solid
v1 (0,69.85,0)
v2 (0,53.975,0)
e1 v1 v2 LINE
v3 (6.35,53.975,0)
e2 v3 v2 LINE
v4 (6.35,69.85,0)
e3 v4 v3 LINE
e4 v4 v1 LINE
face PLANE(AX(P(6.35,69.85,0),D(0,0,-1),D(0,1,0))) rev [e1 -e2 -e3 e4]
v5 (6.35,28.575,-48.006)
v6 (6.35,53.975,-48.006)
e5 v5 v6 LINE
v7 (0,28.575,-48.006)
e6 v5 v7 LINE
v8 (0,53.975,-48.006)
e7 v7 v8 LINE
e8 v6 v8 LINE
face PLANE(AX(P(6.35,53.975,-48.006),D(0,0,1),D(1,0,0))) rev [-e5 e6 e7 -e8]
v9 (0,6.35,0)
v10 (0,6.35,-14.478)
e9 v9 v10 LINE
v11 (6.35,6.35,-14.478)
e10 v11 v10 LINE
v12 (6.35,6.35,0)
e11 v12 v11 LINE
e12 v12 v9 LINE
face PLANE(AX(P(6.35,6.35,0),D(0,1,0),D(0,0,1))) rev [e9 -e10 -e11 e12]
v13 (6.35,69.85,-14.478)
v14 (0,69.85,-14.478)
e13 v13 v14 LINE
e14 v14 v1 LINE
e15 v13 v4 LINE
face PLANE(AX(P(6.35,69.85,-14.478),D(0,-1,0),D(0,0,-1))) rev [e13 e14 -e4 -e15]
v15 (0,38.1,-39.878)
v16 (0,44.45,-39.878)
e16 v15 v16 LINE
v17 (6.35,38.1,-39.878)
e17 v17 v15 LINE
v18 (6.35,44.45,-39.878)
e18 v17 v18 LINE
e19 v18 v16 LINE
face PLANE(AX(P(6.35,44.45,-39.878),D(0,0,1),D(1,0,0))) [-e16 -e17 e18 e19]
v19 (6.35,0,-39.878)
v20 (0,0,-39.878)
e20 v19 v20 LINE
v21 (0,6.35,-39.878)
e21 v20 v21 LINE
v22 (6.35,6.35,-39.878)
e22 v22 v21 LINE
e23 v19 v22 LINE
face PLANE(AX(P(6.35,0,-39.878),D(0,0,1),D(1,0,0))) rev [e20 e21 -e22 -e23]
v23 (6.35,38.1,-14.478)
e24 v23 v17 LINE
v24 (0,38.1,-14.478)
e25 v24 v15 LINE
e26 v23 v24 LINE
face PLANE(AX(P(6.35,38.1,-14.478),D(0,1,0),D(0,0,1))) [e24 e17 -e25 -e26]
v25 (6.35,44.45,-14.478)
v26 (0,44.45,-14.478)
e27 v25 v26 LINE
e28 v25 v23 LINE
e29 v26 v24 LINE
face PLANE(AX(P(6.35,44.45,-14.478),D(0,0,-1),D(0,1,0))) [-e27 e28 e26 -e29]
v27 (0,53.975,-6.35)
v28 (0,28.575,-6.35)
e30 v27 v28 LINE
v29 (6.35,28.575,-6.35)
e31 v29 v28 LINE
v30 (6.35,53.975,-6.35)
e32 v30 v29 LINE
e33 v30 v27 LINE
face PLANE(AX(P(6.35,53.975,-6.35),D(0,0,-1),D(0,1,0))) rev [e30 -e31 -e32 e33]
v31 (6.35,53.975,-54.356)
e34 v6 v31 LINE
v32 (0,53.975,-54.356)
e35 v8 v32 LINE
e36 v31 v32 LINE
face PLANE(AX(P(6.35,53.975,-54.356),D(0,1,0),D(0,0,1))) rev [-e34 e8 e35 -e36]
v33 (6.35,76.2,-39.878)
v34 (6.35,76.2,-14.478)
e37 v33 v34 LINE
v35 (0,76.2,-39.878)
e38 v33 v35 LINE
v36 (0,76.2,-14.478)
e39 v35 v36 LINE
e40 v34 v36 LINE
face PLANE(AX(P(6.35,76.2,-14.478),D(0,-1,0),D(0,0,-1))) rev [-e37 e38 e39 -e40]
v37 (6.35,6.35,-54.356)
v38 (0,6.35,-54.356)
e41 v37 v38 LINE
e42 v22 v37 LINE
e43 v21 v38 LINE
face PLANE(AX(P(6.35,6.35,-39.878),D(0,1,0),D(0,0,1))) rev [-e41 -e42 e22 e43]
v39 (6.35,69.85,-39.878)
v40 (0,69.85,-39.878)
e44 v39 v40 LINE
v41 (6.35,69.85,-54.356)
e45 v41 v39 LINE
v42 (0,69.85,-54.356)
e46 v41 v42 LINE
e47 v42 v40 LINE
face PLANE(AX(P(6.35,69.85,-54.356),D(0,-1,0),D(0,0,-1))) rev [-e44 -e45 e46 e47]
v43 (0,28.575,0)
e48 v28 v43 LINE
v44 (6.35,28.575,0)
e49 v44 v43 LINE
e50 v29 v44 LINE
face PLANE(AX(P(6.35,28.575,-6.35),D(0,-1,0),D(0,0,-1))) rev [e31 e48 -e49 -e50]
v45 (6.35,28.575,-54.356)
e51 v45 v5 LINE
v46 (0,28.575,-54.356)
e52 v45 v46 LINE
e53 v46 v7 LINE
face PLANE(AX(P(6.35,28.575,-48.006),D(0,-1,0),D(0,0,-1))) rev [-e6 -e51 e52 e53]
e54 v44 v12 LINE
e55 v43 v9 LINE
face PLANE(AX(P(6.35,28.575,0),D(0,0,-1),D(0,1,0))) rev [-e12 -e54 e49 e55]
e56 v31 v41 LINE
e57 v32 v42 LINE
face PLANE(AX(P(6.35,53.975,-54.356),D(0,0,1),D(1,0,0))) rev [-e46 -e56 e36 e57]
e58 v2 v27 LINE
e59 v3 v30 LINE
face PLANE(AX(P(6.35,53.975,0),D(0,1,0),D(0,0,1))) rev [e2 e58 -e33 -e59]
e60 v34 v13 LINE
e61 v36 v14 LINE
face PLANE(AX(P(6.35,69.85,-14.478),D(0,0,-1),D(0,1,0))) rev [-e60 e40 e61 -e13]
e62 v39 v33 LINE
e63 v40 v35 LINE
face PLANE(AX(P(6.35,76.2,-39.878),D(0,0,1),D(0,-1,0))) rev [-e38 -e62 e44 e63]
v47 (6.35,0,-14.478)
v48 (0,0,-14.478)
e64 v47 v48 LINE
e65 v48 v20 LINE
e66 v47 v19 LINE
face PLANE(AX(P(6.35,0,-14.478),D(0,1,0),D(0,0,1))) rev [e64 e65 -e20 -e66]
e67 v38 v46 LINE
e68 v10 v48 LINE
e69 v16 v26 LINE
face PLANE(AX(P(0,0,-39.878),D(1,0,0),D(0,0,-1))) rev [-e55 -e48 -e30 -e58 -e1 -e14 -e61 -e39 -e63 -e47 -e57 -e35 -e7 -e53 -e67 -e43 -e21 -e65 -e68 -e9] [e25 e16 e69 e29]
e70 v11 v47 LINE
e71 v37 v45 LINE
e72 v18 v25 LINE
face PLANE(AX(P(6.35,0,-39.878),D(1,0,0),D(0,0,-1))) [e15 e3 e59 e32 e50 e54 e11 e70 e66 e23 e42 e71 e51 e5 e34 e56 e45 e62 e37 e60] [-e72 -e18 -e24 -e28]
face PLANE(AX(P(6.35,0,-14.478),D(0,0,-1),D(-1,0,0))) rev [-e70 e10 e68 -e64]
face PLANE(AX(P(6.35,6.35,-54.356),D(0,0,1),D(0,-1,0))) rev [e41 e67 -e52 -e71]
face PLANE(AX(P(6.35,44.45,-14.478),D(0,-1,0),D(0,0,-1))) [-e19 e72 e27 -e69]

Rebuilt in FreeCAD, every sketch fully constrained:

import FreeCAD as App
import Part
import Sketcher
from FreeCAD import Vector
Q = App.Units.Quantity

doc = App.newDocument("Part")
body = doc.addObject("PartDesign::Body", "Body")

# Sketch on YZ plane
sketch1 = body.newObject("Sketcher::SketchObject", "Sketch")
sketch1.AttachmentSupport = (doc.getObject("YZ_Plane"), [""])
sketch1.MapMode = "FlatFace"
sketch1.addGeometry(Part.LineSegment(Vector(6, -14, 0), Vector(0, -14, 0)), False)
sketch1.addGeometry(Part.LineSegment(Vector(0, -14, 0), Vector(0, -40, 0)), False)
sketch1.addGeometry(Part.LineSegment(Vector(0, -40, 0), Vector(6, -40, 0)), False)
sketch1.addGeometry(Part.LineSegment(Vector(6, -40, 0), Vector(6, -54, 0)), False)
sketch1.addGeometry(Part.LineSegment(Vector(6, -54, 0), Vector(29, -54, 0)), False)
sketch1.addGeometry(Part.LineSegment(Vector(29, -54, 0), Vector(29, -48, 0)), False)
sketch1.addGeometry(Part.LineSegment(Vector(29, -48, 0), Vector(54, -48, 0)), False)
sketch1.addGeometry(Part.LineSegment(Vector(54, -48, 0), Vector(54, -54, 0)), False)
sketch1.addGeometry(Part.LineSegment(Vector(54, -54, 0), Vector(70, -54, 0)), False)
sketch1.addGeometry(Part.LineSegment(Vector(70, -54, 0), Vector(70, -40, 0)), False)
sketch1.addGeometry(Part.LineSegment(Vector(70, -40, 0), Vector(76, -40, 0)), False)
sketch1.addGeometry(Part.LineSegment(Vector(76, -40, 0), Vector(76, -14, 0)), False)
sketch1.addGeometry(Part.LineSegment(Vector(76, -14, 0), Vector(70, -14, 0)), False)
sketch1.addGeometry(Part.LineSegment(Vector(70, -14, 0), Vector(70, 0, 0)), False)
sketch1.addGeometry(Part.LineSegment(Vector(70, 0, 0), Vector(54, 0, 0)), False)
sketch1.addGeometry(Part.LineSegment(Vector(54, 0, 0), Vector(54, -6, 0)), False)
sketch1.addGeometry(Part.LineSegment(Vector(54, -6, 0), Vector(29, -6, 0)), False)
sketch1.addGeometry(Part.LineSegment(Vector(29, -6, 0), Vector(29, 0, 0)), False)
sketch1.addGeometry(Part.LineSegment(Vector(29, 0, 0), Vector(6, 0, 0)), False)
sketch1.addGeometry(Part.LineSegment(Vector(6, 0, 0), Vector(6, -14, 0)), False)
sketch1.addGeometry(Part.LineSegment(Vector(38, -14, 0), Vector(44, -14, 0)), False)
sketch1.addGeometry(Part.LineSegment(Vector(44, -14, 0), Vector(44, -40, 0)), False)
sketch1.addGeometry(Part.LineSegment(Vector(44, -40, 0), Vector(38, -40, 0)), False)
sketch1.addGeometry(Part.LineSegment(Vector(38, -40, 0), Vector(38, -14, 0)), False)
sketch1.addConstraint(Sketcher.Constraint("Coincident", 0, 2, 1, 1))
sketch1.addConstraint(Sketcher.Constraint("Coincident", 1, 2, 2, 1))
sketch1.addConstraint(Sketcher.Constraint("Coincident", 2, 2, 3, 1))
sketch1.addConstraint(Sketcher.Constraint("Coincident", 3, 2, 4, 1))
sketch1.addConstraint(Sketcher.Constraint("Coincident", 4, 2, 5, 1))
sketch1.addConstraint(Sketcher.Constraint("Coincident", 5, 2, 6, 1))
sketch1.addConstraint(Sketcher.Constraint("Coincident", 6, 2, 7, 1))
sketch1.addConstraint(Sketcher.Constraint("Coincident", 7, 2, 8, 1))
sketch1.addConstraint(Sketcher.Constraint("Coincident", 8, 2, 9, 1))
sketch1.addConstraint(Sketcher.Constraint("Coincident", 9, 2, 10, 1))
sketch1.addConstraint(Sketcher.Constraint("Coincident", 10, 2, 11, 1))
sketch1.addConstraint(Sketcher.Constraint("Coincident", 11, 2, 12, 1))
sketch1.addConstraint(Sketcher.Constraint("Coincident", 12, 2, 13, 1))
sketch1.addConstraint(Sketcher.Constraint("Coincident", 13, 2, 14, 1))
sketch1.addConstraint(Sketcher.Constraint("Coincident", 14, 2, 15, 1))
sketch1.addConstraint(Sketcher.Constraint("Coincident", 15, 2, 16, 1))
sketch1.addConstraint(Sketcher.Constraint("Coincident", 16, 2, 17, 1))
sketch1.addConstraint(Sketcher.Constraint("Coincident", 17, 2, 18, 1))
sketch1.addConstraint(Sketcher.Constraint("Coincident", 18, 2, 19, 1))
sketch1.addConstraint(Sketcher.Constraint("Coincident", 19, 2, 0, 1))
sketch1.addConstraint(Sketcher.Constraint("Coincident", 20, 2, 21, 1))
sketch1.addConstraint(Sketcher.Constraint("Coincident", 21, 2, 22, 1))
sketch1.addConstraint(Sketcher.Constraint("Coincident", 22, 2, 23, 1))
sketch1.addConstraint(Sketcher.Constraint("Coincident", 23, 2, 20, 1))
sketch1.addConstraint(Sketcher.Constraint("Horizontal", 0))
sketch1.addConstraint(Sketcher.Constraint("Vertical", 1))
sketch1.addConstraint(Sketcher.Constraint("Horizontal", 2))
sketch1.addConstraint(Sketcher.Constraint("Vertical", 3))
sketch1.addConstraint(Sketcher.Constraint("Horizontal", 4))
sketch1.addConstraint(Sketcher.Constraint("Vertical", 5))
sketch1.addConstraint(Sketcher.Constraint("Horizontal", 6))
sketch1.addConstraint(Sketcher.Constraint("Vertical", 7))
sketch1.addConstraint(Sketcher.Constraint("Horizontal", 8))
sketch1.addConstraint(Sketcher.Constraint("Vertical", 9))
sketch1.addConstraint(Sketcher.Constraint("Horizontal", 10))
sketch1.addConstraint(Sketcher.Constraint("Vertical", 11))
sketch1.addConstraint(Sketcher.Constraint("Horizontal", 12))
sketch1.addConstraint(Sketcher.Constraint("Vertical", 13))
sketch1.addConstraint(Sketcher.Constraint("Horizontal", 14))
sketch1.addConstraint(Sketcher.Constraint("Vertical", 15))
sketch1.addConstraint(Sketcher.Constraint("Horizontal", 16))
sketch1.addConstraint(Sketcher.Constraint("Vertical", 17))
sketch1.addConstraint(Sketcher.Constraint("Horizontal", 18))
sketch1.addConstraint(Sketcher.Constraint("Vertical", 19))
sketch1.addConstraint(Sketcher.Constraint("Horizontal", 20))
sketch1.addConstraint(Sketcher.Constraint("Vertical", 21))
sketch1.addConstraint(Sketcher.Constraint("Horizontal", 22))
sketch1.addConstraint(Sketcher.Constraint("Vertical", 23))
sketch1.addConstraint(Sketcher.Constraint("PointOnObject", 0, 2, -2))
sketch1.addConstraint(Sketcher.Constraint("PointOnObject", 13, 2, -1))
sketch1.addConstraint(Sketcher.Constraint("PointOnObject", 17, 2, -1))
sketch1.addConstraint(Sketcher.Constraint("Horizontal", 4, 2, 7, 2))
sketch1.addConstraint(Sketcher.Constraint("Horizontal", 2, 2, 9, 2))
sketch1.addConstraint(Sketcher.Constraint("Horizontal", 0, 2, 11, 2))
sketch1.addConstraint(Sketcher.Constraint("Horizontal", 19, 2, 20, 2))
sketch1.addConstraint(Sketcher.Constraint("Horizontal", 10, 2, 21, 2))
sketch1.addConstraint(Sketcher.Constraint("Vertical", 9, 2, 12, 2))
sketch1.addConstraint(Sketcher.Constraint("Vertical", 7, 2, 14, 2))
sketch1.addConstraint(Sketcher.Constraint("Vertical", 5, 2, 16, 2))
sketch1.addConstraint(Sketcher.Constraint("Vertical", 3, 2, 18, 2))
sketch1.addConstraint(Sketcher.Constraint("Equal", 2, 10))
sketch1.addConstraint(Sketcher.Constraint("Equal", 12, 20))
sketch1.addConstraint(Sketcher.Constraint("Equal", 16, 1))
sketch1.addConstraint(Sketcher.Constraint("Equal", 22, 5))
sketch1.addConstraint(Sketcher.Constraint("Equal", 9, 13))
sketch1.addConstraint(Sketcher.Constraint("Equal", 7, 15))
sketch1.addConstraint(Sketcher.Constraint("DistanceX", 6, 1, 6, 2, Q("1 in")))
sketch1.addConstraint(Sketcher.Constraint("DistanceX", -1, 1, 10, 2, Q("3 in")))
sketch1.addConstraint(Sketcher.Constraint("DistanceX", 20, 2, 12, 2, Q("1 in")))
sketch1.addConstraint(Sketcher.Constraint("DistanceX", 0, 2, 0, 1, Q("0.25 in")))
sketch1.addConstraint(Sketcher.Constraint("DistanceY", 3, 2, 3, 1, Q("0.57 in")))
sketch1.addConstraint(Sketcher.Constraint("DistanceX", 4, 1, 4, 2, Q("0.875 in")))
pad1 = body.newObject("PartDesign::Pad", "Pad")
pad1.Profile = sketch1
pad1.Length = Q("0.25 in")

doc.recompute()
